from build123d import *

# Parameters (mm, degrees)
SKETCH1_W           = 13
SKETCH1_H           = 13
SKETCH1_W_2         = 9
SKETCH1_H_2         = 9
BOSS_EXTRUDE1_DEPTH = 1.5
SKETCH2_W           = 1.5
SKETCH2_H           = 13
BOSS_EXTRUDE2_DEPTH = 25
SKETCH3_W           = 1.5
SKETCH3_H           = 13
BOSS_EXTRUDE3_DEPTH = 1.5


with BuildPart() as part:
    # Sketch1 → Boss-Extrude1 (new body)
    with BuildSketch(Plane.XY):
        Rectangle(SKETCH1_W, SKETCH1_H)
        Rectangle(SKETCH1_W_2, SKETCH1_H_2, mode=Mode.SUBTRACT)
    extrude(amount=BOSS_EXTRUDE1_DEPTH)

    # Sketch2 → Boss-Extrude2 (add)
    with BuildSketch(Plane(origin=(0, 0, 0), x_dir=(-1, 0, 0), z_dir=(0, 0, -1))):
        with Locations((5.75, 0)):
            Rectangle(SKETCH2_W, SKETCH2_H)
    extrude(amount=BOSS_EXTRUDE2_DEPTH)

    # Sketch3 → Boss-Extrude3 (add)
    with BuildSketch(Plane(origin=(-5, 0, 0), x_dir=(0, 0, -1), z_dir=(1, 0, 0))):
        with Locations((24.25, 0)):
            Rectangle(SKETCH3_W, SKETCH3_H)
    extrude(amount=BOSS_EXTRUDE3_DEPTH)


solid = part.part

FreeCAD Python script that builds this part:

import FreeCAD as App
import Part
import Sketcher

V = App.Vector


def add_polygon(sketch, points):
    """Adds a closed chain of lines whose ends are joined by coincident constraints."""
    first, n = sketch.GeometryCount, len(points)
    for a, b in zip(points, points[1:] + points[:1]):
        sketch.addGeometry(Part.LineSegment(App.Vector(*a, 0), App.Vector(*b, 0)), False)
    for i in range(n):
        sketch.addConstraint(Sketcher.Constraint("Coincident", first + i, 2, first + (i + 1) % n, 1))

doc = App.newDocument("Part")
body = doc.addObject("PartDesign::Body", "Body")

# Sketch on XY plane
sketch1 = body.newObject("Sketcher::SketchObject", "Sketch")
sketch1.AttachmentSupport = (doc.getObject("XY_Plane"), [""])
sketch1.MapMode = "FlatFace"
add_polygon(sketch1, [(-6, 6), (-6, -6), (6, -6), (6, 6)])  # lines 0-3
add_polygon(sketch1, [(4, -4), (-4, -4), (-4, 4), (4, 4)])  # lines 4-7
sketch1.addConstraint(Sketcher.Constraint("Vertical", 0))
sketch1.addConstraint(Sketcher.Constraint("Horizontal", 1))
sketch1.addConstraint(Sketcher.Constraint("Vertical", 2))
sketch1.addConstraint(Sketcher.Constraint("Horizontal", 3))
sketch1.addConstraint(Sketcher.Constraint("Horizontal", 4))
sketch1.addConstraint(Sketcher.Constraint("Vertical", 5))
sketch1.addConstraint(Sketcher.Constraint("Horizontal", 6))
sketch1.addConstraint(Sketcher.Constraint("Vertical", 7))
sketch1.addConstraint(Sketcher.Constraint("Symmetric", 0, 2, 2, 2, -1, 1))
sketch1.addConstraint(Sketcher.Constraint("Symmetric", 4, 2, 6, 2, -1, 1))
sketch1.addConstraint(Sketcher.Constraint("Equal", 3, 0))
sketch1.addConstraint(Sketcher.Constraint("Equal", 6, 5))
sketch1.addConstraint(Sketcher.Constraint("DistanceX", 1, 1, 1, 2, 13.0))
sketch1.addConstraint(Sketcher.Constraint("DistanceX", 4, 2, 4, 1, 9.0))
pad1 = body.newObject("PartDesign::Pad", "Pad")
pad1.Profile = sketch1
pad1.Length = 1.5

# Sketch on XY plane
sketch2 = body.newObject("Sketcher::SketchObject", "Sketch001")
sketch2.AttachmentSupport = (doc.getObject("XY_Plane"), [""])
sketch2.MapMode = "FlatFace"
add_polygon(sketch2, [(-5, 6.5), (-5, -6.5), (-6.5, -6.5), (-6.5, 6.5)])  # lines 0-3
sketch2.addConstraint(Sketcher.Constraint("Vertical", 0))
sketch2.addConstraint(Sketcher.Constraint("Horizontal", 1))
sketch2.addConstraint(Sketcher.Constraint("Vertical", 2))
sketch2.addConstraint(Sketcher.Constraint("Horizontal", 3))
sketch2.addConstraint(Sketcher.Constraint("DistanceY", 0, 2, 0, 1, 13.0))
sketch2.addConstraint(Sketcher.Constraint("DistanceX", 1, 2, 1, 1, 1.5))
sketch2.addConstraint(Sketcher.Constraint("DistanceX", 0, 2, -1, 1, 5.0))
sketch2.addConstraint(Sketcher.Constraint("DistanceY", 0, 2, -1, 1, 6.5))
pad2 = body.newObject("PartDesign::Pad", "Pad001")
pad2.Profile = sketch2
pad2.Length = 25
pad2.Reversed = True

# Sketch on YZ plane
sketch3 = body.newObject("Sketcher::SketchObject", "Sketch002")
sketch3.AttachmentSupport = (doc.getObject("YZ_Plane"), [""])
sketch3.MapMode = "FlatFace"
sketch3.AttachmentOffset = App.Placement(V(0, 0, -5), App.Rotation())
add_polygon(sketch3, [(6.5, -23.5), (-6.5, -23.5), (-6.5, -25), (6.5, -25)])  # lines 0-3
sketch3.addConstraint(Sketcher.Constraint("Horizontal", 0))
sketch3.addConstraint(Sketcher.Constraint("Vertical", 1))
sketch3.addConstraint(Sketcher.Constraint("Horizontal", 2))
sketch3.addConstraint(Sketcher.Constraint("Vertical", 3))
sketch3.addConstraint(Sketcher.Constraint("DistanceX", 0, 2, 0, 1, 13.0))
sketch3.addConstraint(Sketcher.Constraint("DistanceY", 1, 2, 1, 1, 1.5))
sketch3.addConstraint(Sketcher.Constraint("DistanceY", 1, 2, -1, 1, 25.0))
sketch3.addConstraint(Sketcher.Constraint("DistanceX", 0, 2, -1, 1, 6.5))
pad3 = body.newObject("PartDesign::Pad", "Pad002")
pad3.Profile = sketch3
pad3.Length = 1.5

doc.recompute()
